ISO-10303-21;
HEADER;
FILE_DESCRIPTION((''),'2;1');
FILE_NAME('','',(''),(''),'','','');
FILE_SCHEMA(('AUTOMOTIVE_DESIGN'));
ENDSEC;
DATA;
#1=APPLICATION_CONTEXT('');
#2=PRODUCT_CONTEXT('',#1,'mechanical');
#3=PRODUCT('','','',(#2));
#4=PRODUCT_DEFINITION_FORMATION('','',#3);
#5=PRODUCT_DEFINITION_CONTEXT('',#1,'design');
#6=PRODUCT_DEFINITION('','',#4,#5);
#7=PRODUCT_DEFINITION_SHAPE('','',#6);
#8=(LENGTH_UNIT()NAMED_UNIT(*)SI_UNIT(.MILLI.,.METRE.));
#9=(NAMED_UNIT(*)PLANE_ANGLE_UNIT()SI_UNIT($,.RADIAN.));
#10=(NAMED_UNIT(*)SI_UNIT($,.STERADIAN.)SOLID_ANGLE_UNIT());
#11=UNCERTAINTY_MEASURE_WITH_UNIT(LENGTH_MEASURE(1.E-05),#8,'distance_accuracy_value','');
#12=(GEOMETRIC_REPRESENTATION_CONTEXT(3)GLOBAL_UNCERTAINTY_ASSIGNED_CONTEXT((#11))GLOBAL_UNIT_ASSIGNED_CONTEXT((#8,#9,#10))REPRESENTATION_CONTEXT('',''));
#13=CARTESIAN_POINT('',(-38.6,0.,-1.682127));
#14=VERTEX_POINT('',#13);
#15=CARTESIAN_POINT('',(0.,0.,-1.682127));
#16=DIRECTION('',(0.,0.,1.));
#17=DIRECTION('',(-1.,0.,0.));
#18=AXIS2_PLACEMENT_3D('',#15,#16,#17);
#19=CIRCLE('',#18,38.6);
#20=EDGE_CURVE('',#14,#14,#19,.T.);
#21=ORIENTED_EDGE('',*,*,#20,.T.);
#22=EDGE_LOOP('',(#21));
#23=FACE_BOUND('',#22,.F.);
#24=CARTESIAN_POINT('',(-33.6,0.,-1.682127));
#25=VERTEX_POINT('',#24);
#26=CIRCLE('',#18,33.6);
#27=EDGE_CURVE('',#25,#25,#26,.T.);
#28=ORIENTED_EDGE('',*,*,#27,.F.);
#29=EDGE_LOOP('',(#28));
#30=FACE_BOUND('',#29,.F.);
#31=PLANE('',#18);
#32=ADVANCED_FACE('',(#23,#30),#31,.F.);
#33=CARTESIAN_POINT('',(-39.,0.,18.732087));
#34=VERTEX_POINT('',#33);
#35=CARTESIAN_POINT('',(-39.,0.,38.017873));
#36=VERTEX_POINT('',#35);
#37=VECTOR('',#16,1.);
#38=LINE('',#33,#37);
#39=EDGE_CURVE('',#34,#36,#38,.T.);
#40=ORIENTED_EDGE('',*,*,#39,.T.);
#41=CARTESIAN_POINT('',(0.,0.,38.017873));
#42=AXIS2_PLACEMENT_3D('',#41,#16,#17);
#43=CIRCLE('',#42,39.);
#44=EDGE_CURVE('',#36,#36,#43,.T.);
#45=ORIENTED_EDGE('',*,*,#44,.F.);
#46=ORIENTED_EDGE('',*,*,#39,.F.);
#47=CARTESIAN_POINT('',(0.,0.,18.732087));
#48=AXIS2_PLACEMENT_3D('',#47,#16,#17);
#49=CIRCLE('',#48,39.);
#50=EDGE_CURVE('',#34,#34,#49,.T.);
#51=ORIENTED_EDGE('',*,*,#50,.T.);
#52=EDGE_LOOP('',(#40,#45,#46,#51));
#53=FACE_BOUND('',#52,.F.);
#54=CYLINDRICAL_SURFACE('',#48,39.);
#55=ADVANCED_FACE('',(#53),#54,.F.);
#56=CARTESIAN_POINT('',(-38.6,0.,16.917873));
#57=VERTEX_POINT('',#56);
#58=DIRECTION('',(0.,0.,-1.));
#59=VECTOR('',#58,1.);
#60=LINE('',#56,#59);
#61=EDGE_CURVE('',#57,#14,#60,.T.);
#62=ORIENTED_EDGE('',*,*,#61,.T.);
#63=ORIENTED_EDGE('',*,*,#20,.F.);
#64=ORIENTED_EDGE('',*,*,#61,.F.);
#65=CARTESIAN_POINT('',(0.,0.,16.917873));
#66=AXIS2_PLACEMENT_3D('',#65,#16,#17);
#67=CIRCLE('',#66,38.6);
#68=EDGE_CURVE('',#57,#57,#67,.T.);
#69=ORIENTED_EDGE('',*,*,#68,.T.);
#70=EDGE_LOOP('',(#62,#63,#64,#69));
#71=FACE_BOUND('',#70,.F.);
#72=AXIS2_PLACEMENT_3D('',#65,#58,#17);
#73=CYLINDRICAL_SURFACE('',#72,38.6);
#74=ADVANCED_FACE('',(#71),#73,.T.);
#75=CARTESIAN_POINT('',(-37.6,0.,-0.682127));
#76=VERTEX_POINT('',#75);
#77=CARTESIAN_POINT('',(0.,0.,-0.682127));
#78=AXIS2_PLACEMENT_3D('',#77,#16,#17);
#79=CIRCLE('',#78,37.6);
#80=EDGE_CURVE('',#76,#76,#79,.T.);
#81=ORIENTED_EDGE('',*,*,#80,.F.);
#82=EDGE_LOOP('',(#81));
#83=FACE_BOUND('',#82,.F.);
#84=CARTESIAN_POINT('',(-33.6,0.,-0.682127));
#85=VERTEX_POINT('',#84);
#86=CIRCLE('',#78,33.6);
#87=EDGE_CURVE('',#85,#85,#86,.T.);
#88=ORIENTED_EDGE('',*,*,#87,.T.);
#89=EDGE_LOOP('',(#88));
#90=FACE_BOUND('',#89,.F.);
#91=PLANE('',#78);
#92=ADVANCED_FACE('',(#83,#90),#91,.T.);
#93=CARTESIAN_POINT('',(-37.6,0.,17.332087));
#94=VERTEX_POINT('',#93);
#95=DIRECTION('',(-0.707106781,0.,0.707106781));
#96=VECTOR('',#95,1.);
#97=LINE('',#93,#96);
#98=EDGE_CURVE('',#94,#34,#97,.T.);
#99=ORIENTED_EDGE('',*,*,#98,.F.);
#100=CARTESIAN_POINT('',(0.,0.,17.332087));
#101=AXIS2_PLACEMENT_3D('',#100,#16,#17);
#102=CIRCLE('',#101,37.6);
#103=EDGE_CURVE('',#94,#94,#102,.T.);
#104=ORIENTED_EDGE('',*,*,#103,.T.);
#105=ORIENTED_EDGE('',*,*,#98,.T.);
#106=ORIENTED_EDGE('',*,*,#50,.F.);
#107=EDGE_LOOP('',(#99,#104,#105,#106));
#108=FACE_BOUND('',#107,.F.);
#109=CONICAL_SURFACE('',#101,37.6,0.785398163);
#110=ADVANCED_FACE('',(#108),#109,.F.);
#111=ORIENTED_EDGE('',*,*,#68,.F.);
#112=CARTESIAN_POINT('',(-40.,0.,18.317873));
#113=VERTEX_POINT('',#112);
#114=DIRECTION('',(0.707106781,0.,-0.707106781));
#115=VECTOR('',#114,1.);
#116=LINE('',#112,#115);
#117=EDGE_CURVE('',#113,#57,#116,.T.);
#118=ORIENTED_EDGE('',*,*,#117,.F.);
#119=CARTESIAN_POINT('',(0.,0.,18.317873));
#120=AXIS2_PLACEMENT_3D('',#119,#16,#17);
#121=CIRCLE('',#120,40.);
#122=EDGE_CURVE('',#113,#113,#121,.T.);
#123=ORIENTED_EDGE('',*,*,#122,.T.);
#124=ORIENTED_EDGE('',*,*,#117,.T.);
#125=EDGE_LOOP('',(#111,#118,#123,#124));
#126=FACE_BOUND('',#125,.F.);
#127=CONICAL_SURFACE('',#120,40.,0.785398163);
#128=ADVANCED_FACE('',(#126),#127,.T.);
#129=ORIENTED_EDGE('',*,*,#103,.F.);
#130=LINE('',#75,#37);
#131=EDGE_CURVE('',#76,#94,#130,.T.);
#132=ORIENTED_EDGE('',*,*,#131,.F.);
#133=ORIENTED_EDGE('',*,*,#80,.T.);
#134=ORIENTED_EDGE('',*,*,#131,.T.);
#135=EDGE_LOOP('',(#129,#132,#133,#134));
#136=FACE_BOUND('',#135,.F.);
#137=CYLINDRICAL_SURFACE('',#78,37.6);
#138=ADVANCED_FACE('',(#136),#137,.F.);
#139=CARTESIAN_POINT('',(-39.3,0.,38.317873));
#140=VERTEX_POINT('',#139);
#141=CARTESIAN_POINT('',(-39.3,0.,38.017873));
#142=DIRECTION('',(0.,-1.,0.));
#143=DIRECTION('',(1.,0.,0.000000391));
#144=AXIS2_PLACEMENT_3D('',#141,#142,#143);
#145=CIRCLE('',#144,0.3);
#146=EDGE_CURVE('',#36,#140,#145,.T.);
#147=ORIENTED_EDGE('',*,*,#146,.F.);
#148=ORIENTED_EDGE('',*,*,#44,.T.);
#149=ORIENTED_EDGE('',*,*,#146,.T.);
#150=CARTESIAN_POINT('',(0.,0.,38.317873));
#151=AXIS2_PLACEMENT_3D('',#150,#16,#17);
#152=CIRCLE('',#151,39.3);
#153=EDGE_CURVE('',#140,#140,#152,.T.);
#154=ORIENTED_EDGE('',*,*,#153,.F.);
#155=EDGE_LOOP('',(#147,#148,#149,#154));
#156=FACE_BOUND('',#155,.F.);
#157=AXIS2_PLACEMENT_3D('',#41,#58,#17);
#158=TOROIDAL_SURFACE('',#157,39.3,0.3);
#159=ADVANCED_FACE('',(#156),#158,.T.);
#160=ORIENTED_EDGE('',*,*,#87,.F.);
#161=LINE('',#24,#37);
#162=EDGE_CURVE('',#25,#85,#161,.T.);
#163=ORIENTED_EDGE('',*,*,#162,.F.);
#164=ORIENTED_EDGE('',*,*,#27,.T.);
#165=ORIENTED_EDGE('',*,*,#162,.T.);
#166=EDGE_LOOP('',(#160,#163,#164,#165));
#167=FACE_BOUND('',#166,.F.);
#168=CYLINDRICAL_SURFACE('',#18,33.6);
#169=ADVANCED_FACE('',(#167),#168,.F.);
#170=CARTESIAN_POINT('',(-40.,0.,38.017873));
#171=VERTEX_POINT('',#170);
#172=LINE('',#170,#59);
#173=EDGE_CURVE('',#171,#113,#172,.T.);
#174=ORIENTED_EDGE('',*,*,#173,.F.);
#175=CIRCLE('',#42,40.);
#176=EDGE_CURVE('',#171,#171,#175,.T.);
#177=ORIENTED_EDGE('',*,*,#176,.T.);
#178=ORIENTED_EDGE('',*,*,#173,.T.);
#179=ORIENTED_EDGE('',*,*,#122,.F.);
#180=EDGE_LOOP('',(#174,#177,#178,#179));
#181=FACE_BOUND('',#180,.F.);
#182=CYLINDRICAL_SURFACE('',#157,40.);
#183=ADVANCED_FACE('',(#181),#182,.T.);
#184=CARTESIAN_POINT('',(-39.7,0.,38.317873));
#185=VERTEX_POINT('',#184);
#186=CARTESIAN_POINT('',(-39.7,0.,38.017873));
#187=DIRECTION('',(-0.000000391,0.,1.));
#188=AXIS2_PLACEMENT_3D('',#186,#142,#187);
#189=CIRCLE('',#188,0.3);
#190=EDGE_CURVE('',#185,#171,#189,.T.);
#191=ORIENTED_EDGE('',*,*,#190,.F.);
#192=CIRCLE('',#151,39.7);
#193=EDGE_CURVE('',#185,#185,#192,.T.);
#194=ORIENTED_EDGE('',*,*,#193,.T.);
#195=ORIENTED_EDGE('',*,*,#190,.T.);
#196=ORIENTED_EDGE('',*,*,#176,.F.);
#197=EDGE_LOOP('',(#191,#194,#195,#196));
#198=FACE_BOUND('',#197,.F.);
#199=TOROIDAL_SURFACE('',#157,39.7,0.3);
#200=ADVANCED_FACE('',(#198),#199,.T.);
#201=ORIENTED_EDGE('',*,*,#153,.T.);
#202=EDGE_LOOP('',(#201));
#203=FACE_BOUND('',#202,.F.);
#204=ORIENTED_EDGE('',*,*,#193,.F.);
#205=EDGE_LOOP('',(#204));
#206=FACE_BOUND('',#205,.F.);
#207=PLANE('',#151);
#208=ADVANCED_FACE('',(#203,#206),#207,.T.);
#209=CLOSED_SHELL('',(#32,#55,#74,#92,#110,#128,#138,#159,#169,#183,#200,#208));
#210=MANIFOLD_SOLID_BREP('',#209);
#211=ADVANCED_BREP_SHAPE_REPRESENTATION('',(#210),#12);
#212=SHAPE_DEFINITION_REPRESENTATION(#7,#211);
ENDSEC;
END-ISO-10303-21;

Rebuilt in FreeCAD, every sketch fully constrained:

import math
import FreeCAD as App
import Part
import Sketcher

V = App.Vector
Q = App.Units.Quantity

doc = App.newDocument("Part")
params = doc.addObject("Spreadsheet::Sheet", "Params")
for row, (alias, value) in enumerate([
    ("sketch1_radius", "0.3 mm"),
    ("sketch1_width", "5 mm"),
    ("sketch1_width2", "4 mm"),
    ("sketch1_height", "1 mm"),
    ("sketch1_height2", "19.7 mm"),
    ("revolution_angle", "360 deg"),
], start=1):
    params.set(f"A{row}", alias)
    params.set(f"B{row}", "=" + value)
    params.setAlias(f"B{row}", alias)

body = doc.addObject("PartDesign::Body", "Body")

# Sketch on XZ plane
sketch1 = body.newObject("Sketcher::SketchObject", "Sketch")
sketch1.AttachmentSupport = (doc.getObject("XZ_Plane"), [""])
sketch1.MapMode = "FlatFace"
sketch1.addGeometry([
    Part.ArcOfCircle(Part.Circle(V(-39.7, 38.017873, 0), V(0, 0, 1), 0.3), math.radians(90.000022), math.radians(179.999978)),  # 0
    Part.LineSegment(V(-40, 38.017873, 0), V(-40, 18.317873, 0)),  # 1
    Part.LineSegment(V(-40, 18.317873, 0), V(-38.6, 16.917873, 0)),  # 2
    Part.LineSegment(V(-38.6, 16.917873, 0), V(-38.6, -1.682127, 0)),  # 3
    Part.LineSegment(V(-38.6, -1.682127, 0), V(-33.6, -1.682127, 0)),  # 4
    Part.LineSegment(V(-33.6, -1.682127, 0), V(-33.6, -0.682127, 0)),  # 5
    Part.LineSegment(V(-33.6, -0.682127, 0), V(-37.6, -0.682127, 0)),  # 6
    Part.LineSegment(V(-37.6, -0.682127, 0), V(-37.6, 17.332087, 0)),  # 7
    Part.LineSegment(V(-37.6, 17.332087, 0), V(-39, 18.732087, 0)),  # 8
    Part.LineSegment(V(-39, 18.732087, 0), V(-39, 38.017873, 0)),  # 9
    Part.ArcOfCircle(Part.Circle(V(-39.3, 38.017873, 0), V(0, 0, 1), 0.3), math.radians(0.000022), math.radians(89.999978)),  # 10
    Part.LineSegment(V(-39.3, 38.317873, 0), V(-39.7, 38.317873, 0)),  # 11
], False)
sketch1.addConstraint([
    Sketcher.Constraint("Tangent", 0, 2, 1, 1),
    Sketcher.Constraint("Coincident", 1, 2, 2, 1),
    Sketcher.Constraint("Coincident", 2, 2, 3, 1),
    Sketcher.Constraint("Coincident", 3, 2, 4, 1),
    Sketcher.Constraint("Coincident", 4, 2, 5, 1),
    Sketcher.Constraint("Coincident", 5, 2, 6, 1),
    Sketcher.Constraint("Coincident", 6, 2, 7, 1),
    Sketcher.Constraint("Coincident", 7, 2, 8, 1),
    Sketcher.Constraint("Coincident", 8, 2, 9, 1),
    Sketcher.Constraint("Tangent", 9, 2, 10, 1),
    Sketcher.Constraint("Tangent", 10, 2, 11, 1),
    Sketcher.Constraint("Tangent", 11, 2, 0, 1),
    Sketcher.Constraint("Vertical", 1),
    Sketcher.Constraint("Vertical", 3),
    Sketcher.Constraint("Horizontal", 4),
    Sketcher.Constraint("Vertical", 5),
    Sketcher.Constraint("Horizontal", 6),
    Sketcher.Constraint("Vertical", 7),
    Sketcher.Constraint("Vertical", 9),
    Sketcher.Constraint("Horizontal", 11),
    Sketcher.Constraint("Equal", 0, 10),
    Sketcher.Constraint("Parallel", 2, 8),
    Sketcher.Constraint("Equal", 2, 8),
    Sketcher.Constraint("Radius", 0, 0.3),
    Sketcher.Constraint("DistanceX", 4, 1, 4, 2, 5.0),
    Sketcher.Constraint("DistanceX", 6, 2, 6, 1, 4.0),
    Sketcher.Constraint("DistanceY", 5, 1, 5, 2, 1.0),
    Sketcher.Constraint("Angle", 2, Q("-45 deg")),
    Sketcher.Constraint("DistanceY", 1, 2, 1, 1, 19.7),
    Sketcher.Constraint("DistanceY", 3, 2, 3, 1, 18.6),
    Sketcher.Constraint("DistanceX", 0, 2, -1, 1, 40.0),
    Sketcher.Constraint("DistanceY", 3, 2, 1, 2, 20.0),
    Sketcher.Constraint("DistanceY", 7, 1, 7, 2, 18.014214),
    Sketcher.Constraint("DistanceY", -1, 1, 0, 3, 38.017873),
])
sketch1.setExpression("Constraints[23]", "Params.sketch1_radius")
sketch1.setExpression("Constraints[24]", "Params.sketch1_width")
sketch1.setExpression("Constraints[25]", "Params.sketch1_width2")
sketch1.setExpression("Constraints[26]", "Params.sketch1_height")
sketch1.setExpression("Constraints[28]", "Params.sketch1_height2")
revolution = body.newObject("PartDesign::Revolution", "Revolution")
revolution.Profile = sketch1
revolution.ReferenceAxis = (sketch1, ["V_Axis"])
revolution.setExpression("Angle", "Params.revolution_angle")

doc.recompute()
